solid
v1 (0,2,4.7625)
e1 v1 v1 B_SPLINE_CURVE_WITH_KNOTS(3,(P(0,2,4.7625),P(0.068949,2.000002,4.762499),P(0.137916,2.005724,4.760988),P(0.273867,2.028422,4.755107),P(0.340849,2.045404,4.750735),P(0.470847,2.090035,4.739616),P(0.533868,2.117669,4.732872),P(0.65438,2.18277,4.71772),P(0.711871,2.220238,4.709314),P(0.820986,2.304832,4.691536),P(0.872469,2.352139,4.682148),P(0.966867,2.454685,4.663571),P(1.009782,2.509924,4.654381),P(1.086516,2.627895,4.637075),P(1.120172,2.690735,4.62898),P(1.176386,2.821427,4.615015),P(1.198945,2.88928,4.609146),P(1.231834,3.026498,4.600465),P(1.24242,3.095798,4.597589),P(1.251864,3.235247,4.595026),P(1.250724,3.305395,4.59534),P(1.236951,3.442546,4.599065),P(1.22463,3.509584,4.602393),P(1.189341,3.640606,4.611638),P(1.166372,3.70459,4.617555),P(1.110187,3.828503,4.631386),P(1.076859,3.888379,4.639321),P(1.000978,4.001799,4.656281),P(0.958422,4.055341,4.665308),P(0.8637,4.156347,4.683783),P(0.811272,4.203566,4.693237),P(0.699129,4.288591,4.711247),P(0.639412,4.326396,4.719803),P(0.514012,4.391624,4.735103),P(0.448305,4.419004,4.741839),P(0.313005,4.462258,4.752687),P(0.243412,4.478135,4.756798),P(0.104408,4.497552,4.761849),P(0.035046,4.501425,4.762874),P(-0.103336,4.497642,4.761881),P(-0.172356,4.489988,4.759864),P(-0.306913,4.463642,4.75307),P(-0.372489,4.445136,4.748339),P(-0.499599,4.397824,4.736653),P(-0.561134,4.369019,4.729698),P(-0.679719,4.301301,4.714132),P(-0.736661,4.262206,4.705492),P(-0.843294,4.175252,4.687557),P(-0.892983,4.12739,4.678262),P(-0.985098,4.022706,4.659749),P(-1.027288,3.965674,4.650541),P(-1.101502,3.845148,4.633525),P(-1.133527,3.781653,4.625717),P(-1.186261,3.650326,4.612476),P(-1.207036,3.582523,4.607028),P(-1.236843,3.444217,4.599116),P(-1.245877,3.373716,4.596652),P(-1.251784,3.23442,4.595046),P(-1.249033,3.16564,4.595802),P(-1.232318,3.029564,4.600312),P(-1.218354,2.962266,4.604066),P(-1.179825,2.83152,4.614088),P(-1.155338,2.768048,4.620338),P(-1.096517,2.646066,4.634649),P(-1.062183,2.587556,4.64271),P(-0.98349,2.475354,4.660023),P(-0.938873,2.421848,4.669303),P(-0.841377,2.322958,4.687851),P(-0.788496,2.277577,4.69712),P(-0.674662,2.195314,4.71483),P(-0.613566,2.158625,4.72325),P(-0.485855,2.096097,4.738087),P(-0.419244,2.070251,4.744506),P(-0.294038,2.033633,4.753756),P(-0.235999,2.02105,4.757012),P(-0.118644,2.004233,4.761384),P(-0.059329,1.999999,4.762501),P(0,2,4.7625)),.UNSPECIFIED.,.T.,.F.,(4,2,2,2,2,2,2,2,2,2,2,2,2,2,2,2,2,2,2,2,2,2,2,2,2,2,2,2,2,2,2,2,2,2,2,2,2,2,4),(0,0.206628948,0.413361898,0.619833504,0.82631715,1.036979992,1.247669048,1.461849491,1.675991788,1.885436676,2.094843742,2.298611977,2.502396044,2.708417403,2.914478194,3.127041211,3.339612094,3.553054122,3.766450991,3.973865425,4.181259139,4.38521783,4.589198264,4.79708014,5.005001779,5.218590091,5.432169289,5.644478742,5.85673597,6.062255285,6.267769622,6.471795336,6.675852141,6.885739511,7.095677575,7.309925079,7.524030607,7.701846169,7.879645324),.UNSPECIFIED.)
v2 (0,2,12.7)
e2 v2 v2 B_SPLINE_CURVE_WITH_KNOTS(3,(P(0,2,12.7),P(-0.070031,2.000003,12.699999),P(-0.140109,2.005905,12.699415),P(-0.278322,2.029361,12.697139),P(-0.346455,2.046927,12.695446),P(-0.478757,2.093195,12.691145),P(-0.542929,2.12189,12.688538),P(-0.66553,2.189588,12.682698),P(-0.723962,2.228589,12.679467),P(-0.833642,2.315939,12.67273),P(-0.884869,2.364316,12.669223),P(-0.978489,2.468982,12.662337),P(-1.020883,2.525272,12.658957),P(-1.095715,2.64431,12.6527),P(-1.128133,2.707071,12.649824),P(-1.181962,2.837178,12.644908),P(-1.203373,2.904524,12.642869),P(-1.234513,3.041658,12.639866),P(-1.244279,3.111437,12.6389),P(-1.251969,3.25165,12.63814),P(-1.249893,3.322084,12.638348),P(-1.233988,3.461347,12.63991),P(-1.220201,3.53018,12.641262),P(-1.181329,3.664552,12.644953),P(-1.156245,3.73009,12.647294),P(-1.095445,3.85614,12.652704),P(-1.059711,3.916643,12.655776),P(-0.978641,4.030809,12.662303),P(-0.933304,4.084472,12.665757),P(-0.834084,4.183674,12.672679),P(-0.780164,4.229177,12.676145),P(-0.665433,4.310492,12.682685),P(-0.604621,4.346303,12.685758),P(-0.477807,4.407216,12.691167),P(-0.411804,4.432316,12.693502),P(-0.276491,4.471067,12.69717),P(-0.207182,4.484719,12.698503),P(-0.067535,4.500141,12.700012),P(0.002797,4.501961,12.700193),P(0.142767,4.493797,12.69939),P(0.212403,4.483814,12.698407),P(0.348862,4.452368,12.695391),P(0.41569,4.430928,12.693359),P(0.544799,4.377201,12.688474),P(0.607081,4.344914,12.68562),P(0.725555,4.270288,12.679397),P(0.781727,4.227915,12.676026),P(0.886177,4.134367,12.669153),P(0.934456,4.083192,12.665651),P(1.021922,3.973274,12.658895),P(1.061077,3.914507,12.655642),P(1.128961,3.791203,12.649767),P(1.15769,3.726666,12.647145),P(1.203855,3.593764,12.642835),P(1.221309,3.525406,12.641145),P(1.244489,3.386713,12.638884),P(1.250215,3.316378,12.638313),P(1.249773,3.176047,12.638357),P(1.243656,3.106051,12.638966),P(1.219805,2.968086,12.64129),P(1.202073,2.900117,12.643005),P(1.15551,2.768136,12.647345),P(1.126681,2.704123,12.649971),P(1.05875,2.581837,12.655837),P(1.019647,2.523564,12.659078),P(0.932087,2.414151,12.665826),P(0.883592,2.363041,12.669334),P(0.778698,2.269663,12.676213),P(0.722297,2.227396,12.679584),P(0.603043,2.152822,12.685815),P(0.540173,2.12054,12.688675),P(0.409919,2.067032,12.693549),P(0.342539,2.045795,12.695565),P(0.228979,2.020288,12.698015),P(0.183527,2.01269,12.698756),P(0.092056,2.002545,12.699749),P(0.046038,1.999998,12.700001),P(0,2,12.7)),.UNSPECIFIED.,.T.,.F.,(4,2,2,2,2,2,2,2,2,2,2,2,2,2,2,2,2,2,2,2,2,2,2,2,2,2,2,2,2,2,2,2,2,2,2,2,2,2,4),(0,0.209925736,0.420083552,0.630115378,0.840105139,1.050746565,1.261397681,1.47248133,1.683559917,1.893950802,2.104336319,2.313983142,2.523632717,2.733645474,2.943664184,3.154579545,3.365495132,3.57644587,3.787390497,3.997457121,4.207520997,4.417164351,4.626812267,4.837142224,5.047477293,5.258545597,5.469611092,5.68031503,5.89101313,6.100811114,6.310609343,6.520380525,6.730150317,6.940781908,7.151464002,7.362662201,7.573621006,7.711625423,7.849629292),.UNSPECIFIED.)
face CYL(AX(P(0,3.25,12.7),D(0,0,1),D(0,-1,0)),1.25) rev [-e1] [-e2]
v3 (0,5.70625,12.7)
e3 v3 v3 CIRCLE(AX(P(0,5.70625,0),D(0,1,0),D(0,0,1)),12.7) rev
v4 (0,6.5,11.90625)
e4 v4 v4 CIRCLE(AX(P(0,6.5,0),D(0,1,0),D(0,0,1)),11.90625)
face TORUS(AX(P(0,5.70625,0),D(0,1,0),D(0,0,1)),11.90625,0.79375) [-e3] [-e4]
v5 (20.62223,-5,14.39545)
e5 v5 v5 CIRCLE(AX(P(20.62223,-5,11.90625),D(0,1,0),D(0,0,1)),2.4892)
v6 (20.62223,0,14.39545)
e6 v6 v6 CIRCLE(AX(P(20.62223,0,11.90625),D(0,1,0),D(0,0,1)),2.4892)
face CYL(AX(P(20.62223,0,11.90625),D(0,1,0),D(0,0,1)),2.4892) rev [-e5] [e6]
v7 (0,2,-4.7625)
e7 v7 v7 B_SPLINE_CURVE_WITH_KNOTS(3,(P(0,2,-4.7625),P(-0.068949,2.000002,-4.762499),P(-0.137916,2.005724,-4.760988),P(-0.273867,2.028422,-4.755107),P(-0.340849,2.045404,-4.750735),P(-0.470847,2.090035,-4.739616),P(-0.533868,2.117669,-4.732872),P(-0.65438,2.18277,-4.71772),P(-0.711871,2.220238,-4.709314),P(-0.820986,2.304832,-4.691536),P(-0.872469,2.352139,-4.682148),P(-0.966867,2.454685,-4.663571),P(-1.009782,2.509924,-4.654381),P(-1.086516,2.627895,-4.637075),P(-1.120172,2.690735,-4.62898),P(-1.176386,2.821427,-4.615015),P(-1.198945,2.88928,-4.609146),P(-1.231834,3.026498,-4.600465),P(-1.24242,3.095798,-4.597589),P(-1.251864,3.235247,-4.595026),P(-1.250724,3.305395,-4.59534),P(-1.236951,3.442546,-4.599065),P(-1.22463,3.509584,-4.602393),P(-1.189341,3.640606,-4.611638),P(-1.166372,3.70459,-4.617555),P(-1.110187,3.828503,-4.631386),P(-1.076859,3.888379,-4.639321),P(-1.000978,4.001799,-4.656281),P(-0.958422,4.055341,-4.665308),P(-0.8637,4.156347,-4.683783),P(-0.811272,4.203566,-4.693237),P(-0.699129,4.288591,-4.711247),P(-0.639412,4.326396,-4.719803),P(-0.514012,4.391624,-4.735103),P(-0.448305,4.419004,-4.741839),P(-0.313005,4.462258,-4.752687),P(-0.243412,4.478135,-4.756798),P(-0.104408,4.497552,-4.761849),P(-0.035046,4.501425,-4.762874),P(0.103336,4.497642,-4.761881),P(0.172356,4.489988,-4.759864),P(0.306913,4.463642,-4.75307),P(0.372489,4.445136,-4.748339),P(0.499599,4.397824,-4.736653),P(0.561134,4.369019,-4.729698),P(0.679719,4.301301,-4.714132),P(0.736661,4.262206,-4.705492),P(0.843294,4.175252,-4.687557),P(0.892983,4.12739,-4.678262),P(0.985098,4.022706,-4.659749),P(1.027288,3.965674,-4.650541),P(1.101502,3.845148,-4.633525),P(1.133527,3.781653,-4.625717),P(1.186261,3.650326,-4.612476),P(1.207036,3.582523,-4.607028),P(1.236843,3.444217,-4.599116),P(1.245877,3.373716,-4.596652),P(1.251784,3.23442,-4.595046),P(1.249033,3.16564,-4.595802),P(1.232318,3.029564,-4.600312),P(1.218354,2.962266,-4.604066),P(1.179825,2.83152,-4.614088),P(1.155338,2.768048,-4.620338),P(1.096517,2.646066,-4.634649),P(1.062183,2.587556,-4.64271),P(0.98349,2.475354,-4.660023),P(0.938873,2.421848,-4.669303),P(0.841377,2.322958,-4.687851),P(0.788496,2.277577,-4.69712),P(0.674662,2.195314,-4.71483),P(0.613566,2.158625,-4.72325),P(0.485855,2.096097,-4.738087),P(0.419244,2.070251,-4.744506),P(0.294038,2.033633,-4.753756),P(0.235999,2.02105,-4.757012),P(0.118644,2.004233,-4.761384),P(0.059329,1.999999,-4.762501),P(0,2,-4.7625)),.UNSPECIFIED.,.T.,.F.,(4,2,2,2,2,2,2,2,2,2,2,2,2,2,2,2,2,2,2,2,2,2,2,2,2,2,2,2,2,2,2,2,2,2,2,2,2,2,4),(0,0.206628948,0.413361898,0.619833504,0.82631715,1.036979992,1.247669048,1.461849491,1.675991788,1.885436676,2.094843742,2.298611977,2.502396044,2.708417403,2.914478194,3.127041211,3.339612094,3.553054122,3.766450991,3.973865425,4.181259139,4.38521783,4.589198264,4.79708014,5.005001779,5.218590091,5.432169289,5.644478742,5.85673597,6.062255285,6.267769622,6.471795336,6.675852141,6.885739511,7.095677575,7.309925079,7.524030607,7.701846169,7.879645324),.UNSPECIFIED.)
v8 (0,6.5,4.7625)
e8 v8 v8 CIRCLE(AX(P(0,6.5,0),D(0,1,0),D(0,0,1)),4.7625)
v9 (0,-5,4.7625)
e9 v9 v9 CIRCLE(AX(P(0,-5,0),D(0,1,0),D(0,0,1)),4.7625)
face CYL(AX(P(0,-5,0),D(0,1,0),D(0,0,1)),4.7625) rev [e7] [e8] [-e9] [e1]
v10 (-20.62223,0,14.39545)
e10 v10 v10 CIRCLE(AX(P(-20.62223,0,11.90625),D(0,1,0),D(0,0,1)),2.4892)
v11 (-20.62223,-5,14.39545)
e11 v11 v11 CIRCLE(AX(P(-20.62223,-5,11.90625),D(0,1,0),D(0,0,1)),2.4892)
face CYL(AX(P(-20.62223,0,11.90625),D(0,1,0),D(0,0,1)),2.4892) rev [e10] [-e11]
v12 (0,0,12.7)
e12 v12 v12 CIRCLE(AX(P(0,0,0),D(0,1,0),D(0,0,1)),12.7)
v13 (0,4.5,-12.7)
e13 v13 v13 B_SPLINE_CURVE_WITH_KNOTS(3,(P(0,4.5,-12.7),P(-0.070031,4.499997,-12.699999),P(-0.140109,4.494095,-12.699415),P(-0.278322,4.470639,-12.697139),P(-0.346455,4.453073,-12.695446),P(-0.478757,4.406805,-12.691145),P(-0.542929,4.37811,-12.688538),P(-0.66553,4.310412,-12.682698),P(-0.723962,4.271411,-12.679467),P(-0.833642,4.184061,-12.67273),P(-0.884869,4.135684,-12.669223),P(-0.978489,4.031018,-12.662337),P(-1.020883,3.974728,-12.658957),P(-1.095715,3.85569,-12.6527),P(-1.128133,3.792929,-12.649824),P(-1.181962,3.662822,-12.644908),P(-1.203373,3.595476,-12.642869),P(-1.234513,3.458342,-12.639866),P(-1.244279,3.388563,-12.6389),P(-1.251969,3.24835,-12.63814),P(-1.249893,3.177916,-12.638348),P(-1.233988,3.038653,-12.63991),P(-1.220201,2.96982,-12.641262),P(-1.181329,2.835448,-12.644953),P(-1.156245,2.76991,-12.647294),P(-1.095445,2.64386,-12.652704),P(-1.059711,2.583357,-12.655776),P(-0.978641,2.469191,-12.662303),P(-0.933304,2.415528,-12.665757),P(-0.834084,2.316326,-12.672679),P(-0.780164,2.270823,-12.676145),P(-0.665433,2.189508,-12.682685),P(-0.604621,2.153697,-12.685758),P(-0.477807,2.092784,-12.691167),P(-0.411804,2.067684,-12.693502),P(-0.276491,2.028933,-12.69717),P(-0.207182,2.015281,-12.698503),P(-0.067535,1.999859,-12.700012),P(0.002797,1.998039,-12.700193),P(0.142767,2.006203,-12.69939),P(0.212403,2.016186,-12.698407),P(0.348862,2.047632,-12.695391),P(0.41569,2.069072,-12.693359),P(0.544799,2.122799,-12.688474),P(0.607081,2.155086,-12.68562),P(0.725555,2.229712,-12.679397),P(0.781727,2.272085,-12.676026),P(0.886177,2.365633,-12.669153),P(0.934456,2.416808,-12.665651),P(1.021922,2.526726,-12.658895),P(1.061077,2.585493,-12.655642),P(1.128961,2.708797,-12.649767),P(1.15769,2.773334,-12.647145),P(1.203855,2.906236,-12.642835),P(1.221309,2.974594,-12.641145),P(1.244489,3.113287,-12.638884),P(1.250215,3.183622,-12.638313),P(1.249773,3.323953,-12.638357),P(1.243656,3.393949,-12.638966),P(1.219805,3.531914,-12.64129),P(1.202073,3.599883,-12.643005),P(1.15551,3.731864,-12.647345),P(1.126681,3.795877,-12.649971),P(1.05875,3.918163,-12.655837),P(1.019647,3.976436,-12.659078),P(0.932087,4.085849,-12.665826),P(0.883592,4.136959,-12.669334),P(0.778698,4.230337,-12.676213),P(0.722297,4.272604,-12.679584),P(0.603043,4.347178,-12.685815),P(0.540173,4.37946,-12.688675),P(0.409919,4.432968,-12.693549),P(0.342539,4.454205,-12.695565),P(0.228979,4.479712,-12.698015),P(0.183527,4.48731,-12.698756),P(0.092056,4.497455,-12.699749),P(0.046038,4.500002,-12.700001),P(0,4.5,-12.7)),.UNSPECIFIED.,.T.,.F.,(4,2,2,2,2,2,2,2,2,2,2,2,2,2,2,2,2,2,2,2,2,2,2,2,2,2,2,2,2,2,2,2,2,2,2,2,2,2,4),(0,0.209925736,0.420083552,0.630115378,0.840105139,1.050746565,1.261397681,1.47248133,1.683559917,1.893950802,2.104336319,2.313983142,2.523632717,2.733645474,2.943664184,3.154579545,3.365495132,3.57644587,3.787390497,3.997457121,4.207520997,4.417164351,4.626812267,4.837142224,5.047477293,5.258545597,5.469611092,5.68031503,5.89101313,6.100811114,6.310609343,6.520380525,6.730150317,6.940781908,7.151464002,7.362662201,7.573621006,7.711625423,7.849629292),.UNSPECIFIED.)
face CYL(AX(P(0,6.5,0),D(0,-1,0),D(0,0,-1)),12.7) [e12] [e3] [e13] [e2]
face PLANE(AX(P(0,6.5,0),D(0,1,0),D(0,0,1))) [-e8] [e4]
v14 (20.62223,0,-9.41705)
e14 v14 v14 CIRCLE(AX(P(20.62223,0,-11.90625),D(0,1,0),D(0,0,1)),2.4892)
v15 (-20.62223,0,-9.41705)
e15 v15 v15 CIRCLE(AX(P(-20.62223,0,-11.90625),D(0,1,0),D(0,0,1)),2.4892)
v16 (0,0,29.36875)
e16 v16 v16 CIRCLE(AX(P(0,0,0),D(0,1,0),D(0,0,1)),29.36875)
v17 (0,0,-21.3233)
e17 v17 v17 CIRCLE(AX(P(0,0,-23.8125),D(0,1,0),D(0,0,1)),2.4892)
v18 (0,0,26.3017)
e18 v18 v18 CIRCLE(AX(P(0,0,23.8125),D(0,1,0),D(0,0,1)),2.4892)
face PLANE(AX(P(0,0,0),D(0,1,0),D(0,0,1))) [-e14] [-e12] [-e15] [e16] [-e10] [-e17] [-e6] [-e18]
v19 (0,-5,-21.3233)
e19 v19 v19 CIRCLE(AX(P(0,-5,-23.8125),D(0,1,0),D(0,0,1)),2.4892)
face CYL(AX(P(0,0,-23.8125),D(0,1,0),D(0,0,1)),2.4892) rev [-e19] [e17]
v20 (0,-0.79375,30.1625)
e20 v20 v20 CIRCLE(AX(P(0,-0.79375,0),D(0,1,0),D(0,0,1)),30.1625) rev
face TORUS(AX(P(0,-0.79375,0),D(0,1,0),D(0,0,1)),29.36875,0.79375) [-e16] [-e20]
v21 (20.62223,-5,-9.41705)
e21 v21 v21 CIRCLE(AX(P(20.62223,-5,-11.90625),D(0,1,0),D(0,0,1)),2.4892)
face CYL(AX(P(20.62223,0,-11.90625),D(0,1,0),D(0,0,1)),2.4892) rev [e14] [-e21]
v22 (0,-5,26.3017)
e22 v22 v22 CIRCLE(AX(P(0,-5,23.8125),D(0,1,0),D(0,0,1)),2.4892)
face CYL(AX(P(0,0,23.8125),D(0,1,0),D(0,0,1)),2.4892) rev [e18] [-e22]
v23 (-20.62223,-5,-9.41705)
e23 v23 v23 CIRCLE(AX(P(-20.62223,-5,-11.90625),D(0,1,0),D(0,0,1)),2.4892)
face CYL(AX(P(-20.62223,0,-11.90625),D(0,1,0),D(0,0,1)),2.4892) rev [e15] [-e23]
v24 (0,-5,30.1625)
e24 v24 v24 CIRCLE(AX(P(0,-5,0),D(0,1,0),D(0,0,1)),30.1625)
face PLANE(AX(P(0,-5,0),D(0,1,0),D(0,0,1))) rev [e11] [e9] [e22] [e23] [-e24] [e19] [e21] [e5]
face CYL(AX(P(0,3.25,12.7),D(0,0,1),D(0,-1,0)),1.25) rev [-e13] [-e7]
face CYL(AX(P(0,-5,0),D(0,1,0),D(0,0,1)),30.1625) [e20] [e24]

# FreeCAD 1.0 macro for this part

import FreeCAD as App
import Part
import Sketcher

V = App.Vector
Q = App.Units.Quantity


def edges_at(feature, points):
    """Names of the edges that pass closest to the given points."""
    edges = feature.Shape.Edges
    near = lambda p: min(range(len(edges)), key=lambda i: edges[i].distToShape(Part.Vertex(*p))[0])
    return sorted({f"Edge{near(p) + 1}" for p in points})

doc = App.newDocument("Part")
params = doc.addObject("Spreadsheet::Sheet", "Params")
for row, (alias, value) in enumerate([
    ("sketch1_diameter", "2.375 in"),
    ("sketch1_diameter2", "0.375 in"),
    ("pad1_length", "5 mm"),
    ("sketch2_diameter", "1 in"),
    ("sketch2_diameter2", "0.375 in"),
    ("pad2_length", "6.5 mm"),
    ("sketch3_diameter", "0.196 in"),
    ("hole_diameter", "0.196 in"),
    ("hole2_diameter", "2.5 mm"),
    ("fillet_radius", "0.03125 in"),
], start=1):
    params.set(f"A{row}", alias)
    params.set(f"B{row}", "=" + value)
    params.setAlias(f"B{row}", alias)

body = doc.addObject("PartDesign::Body", "Body")

# Sketch on XZ plane
sketch1 = body.newObject("Sketcher::SketchObject", "Sketch")
sketch1.AttachmentSupport = (doc.getObject("XZ_Plane"), [""])
sketch1.MapMode = "FlatFace"
sketch1.addGeometry(Part.Circle(V(0, 0, 0), V(0, 0, 1), 30.2), False)
sketch1.addGeometry(Part.Circle(V(0, 0, 0), V(0, 0, 1), 4.8), False)
sketch1.addConstraint(Sketcher.Constraint("Coincident", 0, 3, -1, 1))
sketch1.addConstraint(Sketcher.Constraint("Coincident", 1, 3, -1, 1))
sketch1.addConstraint(Sketcher.Constraint("Diameter", 0, Q("2.375 in")))
sketch1.addConstraint(Sketcher.Constraint("Diameter", 1, Q("0.375 in")))
sketch1.setExpression("Constraints[2]", "Params.sketch1_diameter")
sketch1.setExpression("Constraints[3]", "Params.sketch1_diameter2")
pad1 = body.newObject("PartDesign::Pad", "Pad")
pad1.Profile = sketch1
pad1.setExpression("Length", "Params.pad1_length")

# Sketch on XZ plane
sketch2 = body.newObject("Sketcher::SketchObject", "Sketch001")
sketch2.AttachmentSupport = (doc.getObject("XZ_Plane"), [""])
sketch2.MapMode = "FlatFace"
sketch2.AttachmentOffset = App.Placement(V(0, 0, -6.5), App.Rotation())
sketch2.addGeometry(Part.Circle(V(0, 0, 0), V(0, 0, 1), 12.7), False)
sketch2.addGeometry(Part.Circle(V(0, 0, 0), V(0, 0, 1), 4.8), False)
sketch2.addConstraint(Sketcher.Constraint("Coincident", 0, 3, -1, 1))
sketch2.addConstraint(Sketcher.Constraint("Coincident", 1, 3, -1, 1))
sketch2.addConstraint(Sketcher.Constraint("Diameter", 0, Q("1 in")))
sketch2.addConstraint(Sketcher.Constraint("Diameter", 1, Q("0.375 in")))
sketch2.setExpression("Constraints[2]", "Params.sketch2_diameter")
sketch2.setExpression("Constraints[3]", "Params.sketch2_diameter2")
pad2 = body.newObject("PartDesign::Pad", "Pad001")
pad2.Profile = sketch2
pad2.setExpression("Length", "Params.pad2_length")

# Sketch on XZ plane
sketch3 = body.newObject("Sketcher::SketchObject", "Sketch002")
sketch3.AttachmentSupport = (doc.getObject("XZ_Plane"), [""])
sketch3.MapMode = "FlatFace"
sketch3.addGeometry(Part.Circle(V(0, -23.8, 0), V(0, 0, 1), 2.5), False)
sketch3.addGeometry(Part.Circle(V(20.6, -11.9, 0), V(0, 0, 1), 2.5), False)
sketch3.addGeometry(Part.Circle(V(20.6, 11.9, 0), V(0, 0, 1), 2.5), False)
sketch3.addGeometry(Part.Circle(V(-20.6, -11.9, 0), V(0, 0, 1), 2.5), False)
sketch3.addGeometry(Part.Circle(V(-20.6, 11.9, 0), V(0, 0, 1), 2.5), False)
sketch3.addGeometry(Part.Circle(V(0, 23.8, 0), V(0, 0, 1), 2.5), False)
sketch3.addConstraint(Sketcher.Constraint("Equal", 0, 1))
sketch3.addConstraint(Sketcher.Constraint("Equal", 1, 2))
sketch3.addConstraint(Sketcher.Constraint("Equal", 2, 3))
sketch3.addConstraint(Sketcher.Constraint("Equal", 3, 4))
sketch3.addConstraint(Sketcher.Constraint("Equal", 4, 5))
sketch3.addConstraint(Sketcher.Constraint("Symmetric", 2, 3, 3, 3, -1, 1))
sketch3.addConstraint(Sketcher.Constraint("Symmetric", 1, 3, 4, 3, -1, 1))
sketch3.addConstraint(Sketcher.Constraint("Symmetric", 0, 3, 5, 3, -1, 1))
sketch3.addConstraint(Sketcher.Constraint("Symmetric", 1, 3, 3, 3, -2))
sketch3.addConstraint(Sketcher.Constraint("PointOnObject", 0, 3, -2))
sketch3.addConstraint(Sketcher.Constraint("Diameter", 0, Q("0.196 in")))
sketch3.addConstraint(Sketcher.Constraint("DistanceY", 0, 3, -1, 1, Q("0.9375 in")))
sketch3.addConstraint(Sketcher.Constraint("DistanceY", 1, 3, -1, 1, Q("0.46875 in")))
sketch3.addConstraint(Sketcher.Constraint("DistanceX", -1, 1, 1, 3, Q("20.62223 mm")))
sketch3.setExpression("Constraints[10]", "Params.sketch3_diameter")
doc.recompute()
hole = body.newObject("PartDesign::Hole", "Hole")
hole.Profile = sketch3
hole.ThreadType = "None"
hole.setExpression("Diameter", "Params.hole_diameter")
hole.DepthType = "ThroughAll"
hole.Reversed = True

# Sketch on XY plane
sketch4 = body.newObject("Sketcher::SketchObject", "Sketch003")
sketch4.AttachmentSupport = (doc.getObject("XY_Plane"), [""])
sketch4.MapMode = "FlatFace"
sketch4.AttachmentOffset = App.Placement(V(0, 0, 0.5 * 25.4), App.Rotation())
sketch4.addGeometry(Part.Circle(V(0, 3.2, 0), V(0, 0, 1), 1.2), False)
sketch4.addConstraint(Sketcher.Constraint("PointOnObject", 0, 3, -2))
sketch4.addConstraint(Sketcher.Constraint("Diameter", 0, Q("2.5 mm")))
sketch4.addConstraint(Sketcher.Constraint("DistanceY", -1, 1, 0, 3, Q("3.25 mm")))
doc.recompute()
hole2 = body.newObject("PartDesign::Hole", "Hole001")
hole2.Profile = sketch4
hole2.ThreadType = "None"
hole2.setExpression("Diameter", "Params.hole2_diameter")
hole2.DepthType = "ThroughAll"
doc.recompute()

fillet = body.newObject("PartDesign::Fillet", "Fillet")
fillet.Base = (hole2, edges_at(hole2, [(0, 6.5, 12.7), (0, 0, -30.163)]))
fillet.setExpression("Radius", "Params.fillet_radius")

doc.recompute()
